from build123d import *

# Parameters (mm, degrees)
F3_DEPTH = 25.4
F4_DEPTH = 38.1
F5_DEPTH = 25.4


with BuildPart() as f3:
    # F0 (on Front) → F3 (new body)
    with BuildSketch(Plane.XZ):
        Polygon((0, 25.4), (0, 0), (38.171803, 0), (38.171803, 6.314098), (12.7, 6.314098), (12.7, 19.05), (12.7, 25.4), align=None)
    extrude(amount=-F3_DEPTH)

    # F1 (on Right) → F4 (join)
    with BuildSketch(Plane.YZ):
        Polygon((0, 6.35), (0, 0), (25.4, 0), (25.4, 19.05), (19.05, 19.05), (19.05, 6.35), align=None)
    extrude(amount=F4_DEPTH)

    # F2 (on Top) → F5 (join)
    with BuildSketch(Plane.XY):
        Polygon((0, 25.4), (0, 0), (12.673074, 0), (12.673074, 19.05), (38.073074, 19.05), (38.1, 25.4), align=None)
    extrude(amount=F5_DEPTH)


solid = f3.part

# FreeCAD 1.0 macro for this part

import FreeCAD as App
import Part
import Sketcher
from FreeCAD import Vector
Q = App.Units.Quantity


def add_polygon(sketch, points):
    """Adds a closed chain of lines whose ends are joined by coincident constraints."""
    first, n = sketch.GeometryCount, len(points)
    for a, b in zip(points, points[1:] + points[:1]):
        sketch.addGeometry(Part.LineSegment(App.Vector(*a, 0), App.Vector(*b, 0)), False)
    for i in range(n):
        sketch.addConstraint(Sketcher.Constraint("Coincident", first + i, 2, first + (i + 1) % n, 1))

doc = App.newDocument("Part")
body = doc.addObject("PartDesign::Body", "Body")

# Sketch on XZ plane
sketch1 = body.newObject("Sketcher::SketchObject", "Sketch")
sketch1.AttachmentSupport = (doc.getObject("XZ_Plane"), [""])
sketch1.MapMode = "FlatFace"
add_polygon(sketch1, [(0, 25.4), (0, 0), (38.171803, 0), (38.171803, 6.314098), (12.7, 6.314098), (12.7, 25.4)])  # lines 0-5
sketch1.addConstraint([
    Sketcher.Constraint("Vertical", 0),
    Sketcher.Constraint("Horizontal", 1),
    Sketcher.Constraint("Vertical", 2),
    Sketcher.Constraint("Horizontal", 3),
    Sketcher.Constraint("Vertical", 4),
    Sketcher.Constraint("Horizontal", 5),
    Sketcher.Constraint("Coincident", 0, 2, -1, 1),
    Sketcher.Constraint("DistanceY", 0, 2, 0, 1, Q("1 in")),
    Sketcher.Constraint("DistanceX", 5, 2, 5, 1, Q("0.5 in")),
    Sketcher.Constraint("DistanceY", 2, 1, 2, 2, 6.314098),
    Sketcher.Constraint("DistanceX", 1, 1, 1, 2, 38.171803),
])
pad1 = body.newObject("PartDesign::Pad", "Pad")
pad1.Profile = sketch1
pad1.Length = Q("1 in")
pad1.Reversed = True

# Sketch on YZ plane
sketch2 = body.newObject("Sketcher::SketchObject", "Sketch001")
sketch2.AttachmentSupport = (doc.getObject("YZ_Plane"), [""])
sketch2.MapMode = "FlatFace"
add_polygon(sketch2, [(0, 6.35), (0, 0), (25.4, 0), (25.4, 19.05), (19.05, 19.05), (19.05, 6.35)])  # lines 0-5
sketch2.addConstraint([
    Sketcher.Constraint("Vertical", 0),
    Sketcher.Constraint("Horizontal", 1),
    Sketcher.Constraint("Vertical", 2),
    Sketcher.Constraint("Horizontal", 3),
    Sketcher.Constraint("Vertical", 4),
    Sketcher.Constraint("Horizontal", 5),
    Sketcher.Constraint("Coincident", 0, 2, -1, 1),
    Sketcher.Constraint("Equal", 3, 0),
    Sketcher.Constraint("Equal", 5, 2),
    Sketcher.Constraint("DistanceX", 1, 1, 1, 2, Q("1 in")),
    Sketcher.Constraint("DistanceY", 4, 2, 4, 1, Q("0.5 in")),
])
pad2 = body.newObject("PartDesign::Pad", "Pad001")
pad2.Profile = sketch2
pad2.Length = Q("1.5 in")

# Sketch on XY plane
sketch3 = body.newObject("Sketcher::SketchObject", "Sketch002")
sketch3.AttachmentSupport = (doc.getObject("XY_Plane"), [""])
sketch3.MapMode = "FlatFace"
add_polygon(sketch3, [(0, 25.4), (0, 0), (12.673074, 0), (12.673074, 19.05), (38.073074, 19.05), (38.1, 25.4)])  # lines 0-5
sketch3.addConstraint([
    Sketcher.Constraint("Vertical", 0),
    Sketcher.Constraint("Horizontal", 1),
    Sketcher.Constraint("Vertical", 2),
    Sketcher.Constraint("Horizontal", 3),
    Sketcher.Constraint("Horizontal", 5),
    Sketcher.Constraint("Coincident", 0, 2, -1, 1),
    Sketcher.Constraint("Equal", 3, 0),
    Sketcher.Constraint("DistanceX", 3, 1, 3, 2, Q("1 in")),
    Sketcher.Constraint("DistanceX", 5, 2, 5, 1, Q("1.5 in")),
    Sketcher.Constraint("DistanceY", 2, 1, 2, 2, Q("0.75 in")),
    Sketcher.Constraint("DistanceX", 1, 1, 1, 2, 12.673074),
])
pad3 = body.newObject("PartDesign::Pad", "Pad002")
pad3.Profile = sketch3
pad3.Length = Q("1 in")

doc.recompute()
